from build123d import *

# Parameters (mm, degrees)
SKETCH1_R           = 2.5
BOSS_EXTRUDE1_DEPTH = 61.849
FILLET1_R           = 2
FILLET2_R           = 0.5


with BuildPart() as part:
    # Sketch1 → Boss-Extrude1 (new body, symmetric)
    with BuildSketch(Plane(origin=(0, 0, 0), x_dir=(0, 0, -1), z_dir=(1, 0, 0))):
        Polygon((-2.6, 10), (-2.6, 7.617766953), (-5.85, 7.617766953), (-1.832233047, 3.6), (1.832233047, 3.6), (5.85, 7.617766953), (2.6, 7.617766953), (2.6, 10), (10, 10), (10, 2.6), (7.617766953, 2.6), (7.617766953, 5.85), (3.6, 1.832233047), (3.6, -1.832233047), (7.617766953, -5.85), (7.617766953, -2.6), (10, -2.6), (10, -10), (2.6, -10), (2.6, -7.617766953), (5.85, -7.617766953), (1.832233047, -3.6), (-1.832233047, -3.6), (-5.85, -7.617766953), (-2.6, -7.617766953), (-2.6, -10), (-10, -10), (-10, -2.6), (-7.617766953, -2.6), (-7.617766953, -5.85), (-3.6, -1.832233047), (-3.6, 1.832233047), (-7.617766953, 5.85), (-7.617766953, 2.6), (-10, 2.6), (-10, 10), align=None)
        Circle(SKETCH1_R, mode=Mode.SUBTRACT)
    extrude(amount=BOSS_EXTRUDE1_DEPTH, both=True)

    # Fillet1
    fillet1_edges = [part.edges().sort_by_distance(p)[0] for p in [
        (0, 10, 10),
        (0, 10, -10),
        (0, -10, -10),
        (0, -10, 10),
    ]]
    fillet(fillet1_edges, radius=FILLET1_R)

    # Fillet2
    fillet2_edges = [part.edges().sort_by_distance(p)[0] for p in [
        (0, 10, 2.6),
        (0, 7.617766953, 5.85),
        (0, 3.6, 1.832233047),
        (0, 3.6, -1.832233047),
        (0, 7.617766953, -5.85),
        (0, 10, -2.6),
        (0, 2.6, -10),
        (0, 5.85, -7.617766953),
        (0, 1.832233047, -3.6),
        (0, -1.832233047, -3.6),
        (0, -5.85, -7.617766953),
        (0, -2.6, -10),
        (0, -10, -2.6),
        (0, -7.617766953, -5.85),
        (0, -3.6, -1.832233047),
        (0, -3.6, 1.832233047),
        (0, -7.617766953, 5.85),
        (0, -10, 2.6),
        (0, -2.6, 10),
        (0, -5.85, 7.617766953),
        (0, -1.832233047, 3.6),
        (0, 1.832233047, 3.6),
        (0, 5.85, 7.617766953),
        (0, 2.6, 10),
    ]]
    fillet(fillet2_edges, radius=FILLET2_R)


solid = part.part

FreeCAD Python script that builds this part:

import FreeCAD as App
import Part
import Sketcher
from FreeCAD import Vector


def edges_at(feature, points):
    """Names of the edges that pass closest to the given points."""
    edges = feature.Shape.Edges
    near = lambda p: min(range(len(edges)), key=lambda i: edges[i].distToShape(Part.Vertex(*p))[0])
    return sorted({f"Edge{near(p) + 1}" for p in points})

doc = App.newDocument("Part")
params = doc.addObject("Spreadsheet::Sheet", "Params")
for row, (alias, value) in enumerate([
    ("sketch1_diameter", "5 mm"),
    ("sketch1_width", "7.4 mm"),
    ("sketch1_width2", "3.25 mm"),
    ("pad1_length", "123.698 mm"),
    ("fillet_radius", "2 mm"),
    ("fillet2_radius", "0.5 mm"),
], start=1):
    params.set(f"A{row}", alias)
    params.set(f"B{row}", "=" + value)
    params.setAlias(f"B{row}", alias)

body = doc.addObject("PartDesign::Body", "Body")

# Sketch on YZ plane
sketch1 = body.newObject("Sketcher::SketchObject", "Sketch")
sketch1.AttachmentSupport = (doc.getObject("YZ_Plane"), [""])
sketch1.MapMode = "FlatFace"
sketch1.addGeometry([
    Part.LineSegment(Vector(7.617767, 2.6, 0), Vector(10, 2.6, 0)),  # 0
    Part.LineSegment(Vector(10, 2.6, 0), Vector(10, 10, 0)),  # 1
    Part.LineSegment(Vector(10, 10, 0), Vector(2.6, 10, 0)),  # 2
    Part.LineSegment(Vector(2.6, 10, 0), Vector(2.6, 7.617767, 0)),  # 3
    Part.LineSegment(Vector(2.6, 7.617767, 0), Vector(5.85, 7.617767, 0)),  # 4
    Part.LineSegment(Vector(5.85, 7.617767, 0), Vector(1.832233, 3.6, 0)),  # 5
    Part.LineSegment(Vector(1.832233, 3.6, 0), Vector(-1.832233, 3.6, 0)),  # 6
    Part.LineSegment(Vector(-1.832233, 3.6, 0), Vector(-5.85, 7.617767, 0)),  # 7
    Part.LineSegment(Vector(-5.85, 7.617767, 0), Vector(-2.6, 7.617767, 0)),  # 8
    Part.LineSegment(Vector(-2.6, 7.617767, 0), Vector(-2.6, 10, 0)),  # 9
    Part.LineSegment(Vector(-2.6, 10, 0), Vector(-10, 10, 0)),  # 10
    Part.LineSegment(Vector(-10, 10, 0), Vector(-10, 2.6, 0)),  # 11
    Part.LineSegment(Vector(-10, 2.6, 0), Vector(-7.617767, 2.6, 0)),  # 12
    Part.LineSegment(Vector(-7.617767, 2.6, 0), Vector(-7.617767, 5.85, 0)),  # 13
    Part.LineSegment(Vector(-7.617767, 5.85, 0), Vector(-3.6, 1.832233, 0)),  # 14
    Part.LineSegment(Vector(-3.6, 1.832233, 0), Vector(-3.6, -1.832233, 0)),  # 15
    Part.LineSegment(Vector(-3.6, -1.832233, 0), Vector(-7.617767, -5.85, 0)),  # 16
    Part.LineSegment(Vector(-7.617767, -5.85, 0), Vector(-7.617767, -2.6, 0)),  # 17
    Part.LineSegment(Vector(-7.617767, -2.6, 0), Vector(-10, -2.6, 0)),  # 18
    Part.LineSegment(Vector(-10, -2.6, 0), Vector(-10, -10, 0)),  # 19
    Part.LineSegment(Vector(-10, -10, 0), Vector(-2.6, -10, 0)),  # 20
    Part.LineSegment(Vector(-2.6, -10, 0), Vector(-2.6, -7.617767, 0)),  # 21
    Part.LineSegment(Vector(-2.6, -7.617767, 0), Vector(-5.85, -7.617767, 0)),  # 22
    Part.LineSegment(Vector(-5.85, -7.617767, 0), Vector(-1.832233, -3.6, 0)),  # 23
    Part.LineSegment(Vector(-1.832233, -3.6, 0), Vector(1.832233, -3.6, 0)),  # 24
    Part.LineSegment(Vector(1.832233, -3.6, 0), Vector(5.85, -7.617767, 0)),  # 25
    Part.LineSegment(Vector(5.85, -7.617767, 0), Vector(2.6, -7.617767, 0)),  # 26
    Part.LineSegment(Vector(2.6, -7.617767, 0), Vector(2.6, -10, 0)),  # 27
    Part.LineSegment(Vector(2.6, -10, 0), Vector(10, -10, 0)),  # 28
    Part.LineSegment(Vector(10, -10, 0), Vector(10, -2.6, 0)),  # 29
    Part.LineSegment(Vector(10, -2.6, 0), Vector(7.617767, -2.6, 0)),  # 30
    Part.LineSegment(Vector(7.617767, -2.6, 0), Vector(7.617767, -5.85, 0)),  # 31
    Part.LineSegment(Vector(7.617767, -5.85, 0), Vector(3.6, -1.832233, 0)),  # 32
    Part.LineSegment(Vector(3.6, -1.832233, 0), Vector(3.6, 1.832233, 0)),  # 33
    Part.LineSegment(Vector(3.6, 1.832233, 0), Vector(7.617767, 5.85, 0)),  # 34
    Part.LineSegment(Vector(7.617767, 5.85, 0), Vector(7.617767, 2.6, 0)),  # 35
    Part.Circle(Vector(0, 0, 0), Vector(0, 0, 1), 2.5),  # 36
], False)
sketch1.addConstraint([
    Sketcher.Constraint("Coincident", 0, 2, 1, 1),
    Sketcher.Constraint("Coincident", 1, 2, 2, 1),
    Sketcher.Constraint("Coincident", 2, 2, 3, 1),
    Sketcher.Constraint("Coincident", 3, 2, 4, 1),
    Sketcher.Constraint("Coincident", 4, 2, 5, 1),
    Sketcher.Constraint("Coincident", 5, 2, 6, 1),
    Sketcher.Constraint("Coincident", 6, 2, 7, 1),
    Sketcher.Constraint("Coincident", 7, 2, 8, 1),
    Sketcher.Constraint("Coincident", 8, 2, 9, 1),
    Sketcher.Constraint("Coincident", 9, 2, 10, 1),
    Sketcher.Constraint("Coincident", 10, 2, 11, 1),
    Sketcher.Constraint("Coincident", 11, 2, 12, 1),
    Sketcher.Constraint("Coincident", 12, 2, 13, 1),
    Sketcher.Constraint("Coincident", 13, 2, 14, 1),
    Sketcher.Constraint("Coincident", 14, 2, 15, 1),
    Sketcher.Constraint("Coincident", 15, 2, 16, 1),
    Sketcher.Constraint("Coincident", 16, 2, 17, 1),
    Sketcher.Constraint("Coincident", 17, 2, 18, 1),
    Sketcher.Constraint("Coincident", 18, 2, 19, 1),
    Sketcher.Constraint("Coincident", 19, 2, 20, 1),
    Sketcher.Constraint("Coincident", 20, 2, 21, 1),
    Sketcher.Constraint("Coincident", 21, 2, 22, 1),
    Sketcher.Constraint("Coincident", 22, 2, 23, 1),
    Sketcher.Constraint("Coincident", 23, 2, 24, 1),
    Sketcher.Constraint("Coincident", 24, 2, 25, 1),
    Sketcher.Constraint("Coincident", 25, 2, 26, 1),
    Sketcher.Constraint("Coincident", 26, 2, 27, 1),
    Sketcher.Constraint("Coincident", 27, 2, 28, 1),
    Sketcher.Constraint("Coincident", 28, 2, 29, 1),
    Sketcher.Constraint("Coincident", 29, 2, 30, 1),
    Sketcher.Constraint("Coincident", 30, 2, 31, 1),
    Sketcher.Constraint("Coincident", 31, 2, 32, 1),
    Sketcher.Constraint("Coincident", 32, 2, 33, 1),
    Sketcher.Constraint("Coincident", 33, 2, 34, 1),
    Sketcher.Constraint("Coincident", 34, 2, 35, 1),
    Sketcher.Constraint("Coincident", 35, 2, 0, 1),
    Sketcher.Constraint("Horizontal", 0),
    Sketcher.Constraint("Vertical", 1),
    Sketcher.Constraint("Horizontal", 2),
    Sketcher.Constraint("Vertical", 3),
    Sketcher.Constraint("Horizontal", 4),
    Sketcher.Constraint("Horizontal", 6),
    Sketcher.Constraint("Horizontal", 8),
    Sketcher.Constraint("Vertical", 9),
    Sketcher.Constraint("Horizontal", 10),
    Sketcher.Constraint("Vertical", 11),
    Sketcher.Constraint("Horizontal", 12),
    Sketcher.Constraint("Vertical", 13),
    Sketcher.Constraint("Vertical", 15),
    Sketcher.Constraint("Vertical", 17),
    Sketcher.Constraint("Horizontal", 18),
    Sketcher.Constraint("Vertical", 19),
    Sketcher.Constraint("Horizontal", 20),
    Sketcher.Constraint("Vertical", 21),
    Sketcher.Constraint("Horizontal", 22),
    Sketcher.Constraint("Horizontal", 24),
    Sketcher.Constraint("Horizontal", 26),
    Sketcher.Constraint("Vertical", 27),
    Sketcher.Constraint("Horizontal", 28),
    Sketcher.Constraint("Vertical", 29),
    Sketcher.Constraint("Horizontal", 30),
    Sketcher.Constraint("Vertical", 31),
    Sketcher.Constraint("Vertical", 33),
    Sketcher.Constraint("Vertical", 35),
    Sketcher.Constraint("Coincident", 36, 3, -1, 1),
    Sketcher.Constraint("Symmetric", 0, 2, 18, 2, -1, 1),
    Sketcher.Constraint("Symmetric", 2, 2, 20, 2, -1, 1),
    Sketcher.Constraint("Symmetric", 4, 2, 22, 2, -1, 1),
    Sketcher.Constraint("Symmetric", 5, 2, 23, 2, -1, 1),
    Sketcher.Constraint("Symmetric", 7, 2, 25, 2, -1, 1),
    Sketcher.Constraint("Symmetric", 9, 2, 27, 2, -1, 1),
    Sketcher.Constraint("Symmetric", 11, 2, 29, 2, -1, 1),
    Sketcher.Constraint("Symmetric", 13, 2, 31, 2, -1, 1),
    Sketcher.Constraint("Symmetric", 14, 2, 32, 2, -1, 1),
    Sketcher.Constraint("Symmetric", 16, 2, 34, 2, -1, 1),
    Sketcher.Constraint("Symmetric", 4, 2, 7, 2, -2),
    Sketcher.Constraint("Symmetric", 2, 2, 9, 2, -2),
    Sketcher.Constraint("Symmetric", 0, 2, 11, 2, -2),
    Sketcher.Constraint("Symmetric", 16, 2, 31, 2, -2),
    Sketcher.Constraint("Perpendicular", 5, 7),
    Sketcher.Constraint("Parallel", 7, 14),
    Sketcher.Constraint("Perpendicular", 14, 16),
    Sketcher.Constraint("Perpendicular", 23, 25),
    Sketcher.Constraint("Perpendicular", 32, 34),
    Sketcher.Constraint("Horizontal", 15, 2, 32, 2),
    Sketcher.Constraint("Equal", 28, 1),
    Sketcher.Constraint("Equal", 30, 3),
    Sketcher.Constraint("Equal", 26, 13),
    Sketcher.Constraint("Equal", 24, 15),
    Sketcher.Constraint("Equal", 7, 14),
    Sketcher.Constraint("Diameter", 36, 5.0),
    Sketcher.Constraint("DistanceX", 2, 2, 2, 1, 7.4),
    Sketcher.Constraint("DistanceX", -1, 1, 0, 2, 10.0),
    Sketcher.Constraint("DistanceY", 0, 2, 5, 2, 1.0),
    Sketcher.Constraint("DistanceX", 4, 1, 4, 2, 3.25),
    Sketcher.Constraint("Distance", 5, 5.681981),
])
sketch1.setExpression("Constraints[90]", "Params.sketch1_diameter")
sketch1.setExpression("Constraints[91]", "Params.sketch1_width")
sketch1.setExpression("Constraints[94]", "Params.sketch1_width2")
pad1 = body.newObject("PartDesign::Pad", "Pad")
pad1.Profile = sketch1
pad1.setExpression("Length", "Params.pad1_length")
pad1.Midplane = True
doc.recompute()

fillet = body.newObject("PartDesign::Fillet", "Fillet")
fillet.Base = (pad1, edges_at(pad1, [
    (0, 10, 10),
    (0, 10, -10),
    (0, -10, -10),
    (0, -10, 10),
]))
fillet.setExpression("Radius", "Params.fillet_radius")
doc.recompute()

fillet2 = body.newObject("PartDesign::Fillet", "Fillet001")
fillet2.Base = (fillet, edges_at(fillet, [
    (0, 10, 2.6),
    (0, 7.618, 5.85),
    (0, 3.6, 1.832),
    (0, 3.6, -1.832),
    (0, 7.618, -5.85),
    (0, 10, -2.6),
    (0, 2.6, -10),
    (0, 5.85, -7.618),
    (0, 1.832, -3.6),
    (0, -1.832, -3.6),
    (0, -5.85, -7.618),
    (0, -2.6, -10),
    (0, -10, -2.6),
    (0, -7.618, -5.85),
    (0, -3.6, -1.832),
    (0, -3.6, 1.832),
    (0, -7.618, 5.85),
    (0, -10, 2.6),
    (0, -2.6, 10),
    (0, -5.85, 7.618),
    (0, -1.832, 3.6),
    (0, 1.832, 3.6),
    (0, 5.85, 7.618),
    (0, 2.6, 10),
]))
fillet2.setExpression("Radius", "Params.fillet2_radius")

doc.recompute()
